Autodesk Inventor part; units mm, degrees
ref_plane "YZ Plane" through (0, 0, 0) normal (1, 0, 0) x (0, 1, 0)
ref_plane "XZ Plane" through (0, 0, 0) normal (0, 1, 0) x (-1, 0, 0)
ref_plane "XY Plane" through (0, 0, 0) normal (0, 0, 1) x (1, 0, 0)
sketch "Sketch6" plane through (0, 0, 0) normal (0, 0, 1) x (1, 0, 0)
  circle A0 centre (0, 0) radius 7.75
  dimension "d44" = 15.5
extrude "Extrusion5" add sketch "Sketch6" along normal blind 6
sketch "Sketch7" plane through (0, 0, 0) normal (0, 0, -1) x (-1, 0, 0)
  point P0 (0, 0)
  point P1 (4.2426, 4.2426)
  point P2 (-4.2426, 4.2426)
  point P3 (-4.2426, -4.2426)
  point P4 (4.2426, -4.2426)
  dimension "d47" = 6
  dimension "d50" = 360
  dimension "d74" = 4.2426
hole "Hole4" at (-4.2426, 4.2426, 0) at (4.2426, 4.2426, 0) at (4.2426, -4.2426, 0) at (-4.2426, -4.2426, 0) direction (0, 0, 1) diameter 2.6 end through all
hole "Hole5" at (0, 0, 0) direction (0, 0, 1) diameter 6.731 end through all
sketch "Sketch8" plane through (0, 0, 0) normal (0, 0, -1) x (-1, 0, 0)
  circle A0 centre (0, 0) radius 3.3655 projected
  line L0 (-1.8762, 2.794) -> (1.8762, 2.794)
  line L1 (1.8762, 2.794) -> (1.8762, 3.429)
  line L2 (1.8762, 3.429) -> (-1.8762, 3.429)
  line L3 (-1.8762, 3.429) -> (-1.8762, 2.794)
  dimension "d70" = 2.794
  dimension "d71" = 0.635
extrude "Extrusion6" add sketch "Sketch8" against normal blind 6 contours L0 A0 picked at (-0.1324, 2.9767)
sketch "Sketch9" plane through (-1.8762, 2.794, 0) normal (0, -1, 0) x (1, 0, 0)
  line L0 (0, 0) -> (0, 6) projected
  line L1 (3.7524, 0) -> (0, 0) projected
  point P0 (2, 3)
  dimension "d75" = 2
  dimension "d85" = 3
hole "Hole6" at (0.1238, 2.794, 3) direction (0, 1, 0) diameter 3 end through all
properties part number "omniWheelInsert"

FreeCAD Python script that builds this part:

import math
import FreeCAD as App
import Part
import Sketcher

V = App.Vector

doc = App.newDocument("Part")
params = doc.addObject("Spreadsheet::Sheet", "Params")
for row, (alias, value) in enumerate([
    ("sketch1_diameter", "15.5 mm"),
    ("pad1_length", "6 mm"),
    ("sketch2_diameter", "2.6 mm"),
    ("hole_diameter", "2.6 mm"),
    ("hole2_diameter", "6.731 mm"),
    ("pad2_length", "6 mm"),
    ("sketch5_diameter", "3 mm"),
    ("hole3_diameter", "3 mm"),
], start=1):
    params.set(f"A{row}", alias)
    params.set(f"B{row}", "=" + value)
    params.setAlias(f"B{row}", alias)

body = doc.addObject("PartDesign::Body", "Body")

sketch1 = doc.addObject("Sketcher::SketchObject", "Sketch")
body.addObject(sketch1)
sketch1.AttachmentSupport = (doc.XY_Plane, [""])
sketch1.MapMode = "FlatFace"
sketch1.addGeometry(Part.Circle(V(0, 0, 0), V(0, 0, 1), 8), False)
sketch1.addConstraint(Sketcher.Constraint("Coincident", 0, 3, -1, 1))
sketch1.addConstraint(Sketcher.Constraint("Diameter", 0, 15.5))
sketch1.setExpression("Constraints[1]", "Params.sketch1_diameter")
pad1 = doc.addObject("PartDesign::Pad", "Pad")
body.addObject(pad1)
pad1.Profile = sketch1
pad1.setExpression("Length", "Params.pad1_length")

sketch2 = doc.addObject("Sketcher::SketchObject", "Sketch001")
body.addObject(sketch2)
sketch2.AttachmentSupport = (doc.XY_Plane, [""])
sketch2.MapMode = "FlatFace"
sketch2.addGeometry(Part.Circle(V(-4.2, 4.2, 0), V(0, 0, 1), 1.3), False)
sketch2.addGeometry(Part.Circle(V(4.2, 4.2, 0), V(0, 0, 1), 1.3), False)
sketch2.addGeometry(Part.Circle(V(4.2, -4.2, 0), V(0, 0, 1), 1.3), False)
sketch2.addGeometry(Part.Circle(V(-4.2, -4.2, 0), V(0, 0, 1), 1.3), False)
sketch2.addConstraint(Sketcher.Constraint("Equal", 0, 1))
sketch2.addConstraint(Sketcher.Constraint("Equal", 1, 2))
sketch2.addConstraint(Sketcher.Constraint("Equal", 2, 3))
sketch2.addConstraint(Sketcher.Constraint("Symmetric", 0, 3, 2, 3, -1, 1))
sketch2.addConstraint(Sketcher.Constraint("Symmetric", 1, 3, 3, 3, -1, 1))
sketch2.addConstraint(Sketcher.Constraint("Symmetric", 0, 3, 1, 3, -2))
sketch2.addConstraint(Sketcher.Constraint("Diameter", 0, 2.6))
sketch2.addConstraint(Sketcher.Constraint("DistanceX", 0, 3, -1, 1, 4.2426))
sketch2.addConstraint(Sketcher.Constraint("DistanceY", -1, 1, 0, 3, 4.2426))
sketch2.setExpression("Constraints[6]", "Params.sketch2_diameter")
doc.recompute()
hole = doc.addObject("PartDesign::Hole", "Hole")
body.addObject(hole)
hole.Profile = sketch2
hole.ThreadType = "None"
hole.setExpression("Diameter", "Params.hole_diameter")
hole.DepthType = "ThroughAll"
hole.Reversed = True

sketch3 = doc.addObject("Sketcher::SketchObject", "Sketch002")
body.addObject(sketch3)
sketch3.AttachmentSupport = (doc.XY_Plane, [""])
sketch3.MapMode = "FlatFace"
sketch3.addGeometry(Part.Circle(V(0, 0, 0), V(0, 0, 1), 3.4), False)
sketch3.addConstraint(Sketcher.Constraint("Coincident", 0, 3, -1, 1))
sketch3.addConstraint(Sketcher.Constraint("Diameter", 0, 6.731))
doc.recompute()
hole2 = doc.addObject("PartDesign::Hole", "Hole001")
body.addObject(hole2)
hole2.Profile = sketch3
hole2.ThreadType = "None"
hole2.setExpression("Diameter", "Params.hole2_diameter")
hole2.DepthType = "ThroughAll"
hole2.Reversed = True

sketch4 = doc.addObject("Sketcher::SketchObject", "Sketch003")
body.addObject(sketch4)
sketch4.AttachmentSupport = (doc.XY_Plane, [""])
sketch4.MapMode = "FlatFace"
sketch4.addGeometry(Part.LineSegment(V(1.9, 2.8, 0), V(-1.9, 2.8, 0)), False)
sketch4.addGeometry(Part.ArcOfCircle(Part.Circle(V(0, 0, 0), V(0, 0, 1), 3.4), math.radians(56), math.radians(124)), False)
sketch4.addConstraint(Sketcher.Constraint("Coincident", 0, 1, 1, 1))
sketch4.addConstraint(Sketcher.Constraint("Coincident", 1, 2, 0, 2))
sketch4.addConstraint(Sketcher.Constraint("Horizontal", 0))
sketch4.addConstraint(Sketcher.Constraint("Coincident", 1, 3, -1, 1))
sketch4.addConstraint(Sketcher.Constraint("DistanceY", -1, 1, 0, 1, 2.794))
sketch4.addConstraint(Sketcher.Constraint("Radius", 1, 3.3655))
pad2 = doc.addObject("PartDesign::Pad", "Pad001")
body.addObject(pad2)
pad2.Profile = sketch4
pad2.setExpression("Length", "Params.pad2_length")

sketch5 = doc.addObject("Sketcher::SketchObject", "Sketch004")
body.addObject(sketch5)
sketch5.AttachmentSupport = (doc.XZ_Plane, [""])
sketch5.MapMode = "FlatFace"
sketch5.AttachmentOffset = App.Placement(V(0, 0, -2.794), App.Rotation())
sketch5.addGeometry(Part.Circle(V(0.1, 3, 0), V(0, 0, 1), 1.5), False)
sketch5.addConstraint(Sketcher.Constraint("Diameter", 0, 3.0))
sketch5.addConstraint(Sketcher.Constraint("DistanceY", -1, 1, 0, 3, 3.0))
sketch5.addConstraint(Sketcher.Constraint("DistanceX", -1, 1, 0, 3, 0.1238))
sketch5.setExpression("Constraints[0]", "Params.sketch5_diameter")
doc.recompute()
hole3 = doc.addObject("PartDesign::Hole", "Hole002")
body.addObject(hole3)
hole3.Profile = sketch5
hole3.ThreadType = "None"
hole3.setExpression("Diameter", "Params.hole3_diameter")
hole3.DepthType = "ThroughAll"

doc.recompute()
